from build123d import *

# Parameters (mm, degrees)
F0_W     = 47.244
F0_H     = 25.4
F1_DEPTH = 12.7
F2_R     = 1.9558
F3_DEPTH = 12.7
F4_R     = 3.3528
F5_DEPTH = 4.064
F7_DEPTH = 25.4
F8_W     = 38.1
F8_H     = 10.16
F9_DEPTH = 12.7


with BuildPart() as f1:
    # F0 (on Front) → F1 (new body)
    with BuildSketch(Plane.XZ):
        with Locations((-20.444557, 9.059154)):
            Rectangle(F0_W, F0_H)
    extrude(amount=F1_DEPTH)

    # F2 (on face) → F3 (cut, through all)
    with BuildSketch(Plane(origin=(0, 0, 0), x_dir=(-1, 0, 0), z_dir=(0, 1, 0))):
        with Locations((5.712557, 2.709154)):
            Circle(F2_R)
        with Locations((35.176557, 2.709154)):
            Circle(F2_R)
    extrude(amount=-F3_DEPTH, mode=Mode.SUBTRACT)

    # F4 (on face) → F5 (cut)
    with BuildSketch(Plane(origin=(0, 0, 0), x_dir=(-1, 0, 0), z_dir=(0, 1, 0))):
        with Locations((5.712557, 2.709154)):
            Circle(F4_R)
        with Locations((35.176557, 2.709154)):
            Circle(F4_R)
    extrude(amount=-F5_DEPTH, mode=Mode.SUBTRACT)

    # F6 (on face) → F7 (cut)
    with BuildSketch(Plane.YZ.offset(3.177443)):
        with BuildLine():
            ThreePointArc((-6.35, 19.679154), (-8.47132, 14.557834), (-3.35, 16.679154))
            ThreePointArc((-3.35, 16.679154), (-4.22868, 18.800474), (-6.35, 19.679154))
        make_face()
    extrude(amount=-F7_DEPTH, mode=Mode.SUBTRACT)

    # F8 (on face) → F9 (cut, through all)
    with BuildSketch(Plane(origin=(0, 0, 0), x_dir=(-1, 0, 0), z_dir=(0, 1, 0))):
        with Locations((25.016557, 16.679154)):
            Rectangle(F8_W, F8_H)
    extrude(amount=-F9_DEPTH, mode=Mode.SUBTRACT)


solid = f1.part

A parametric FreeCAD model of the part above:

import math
import FreeCAD as App
import Part
import Sketcher
Q = App.Units.Quantity

doc = App.newDocument("Part")
body = doc.addObject("PartDesign::Body", "Body")

# Sketch on XZ plane
sketch1 = body.newObject("Sketcher::SketchObject", "Sketch")
sketch1.AttachmentSupport = (doc.getObject("XZ_Plane"), [""])
sketch1.MapMode = "FlatFace"
sketch1.addGeometry(Part.LineSegment(App.Vector(-44, 22, 0), App.Vector(-44, -4, 0)), False)
sketch1.addGeometry(Part.LineSegment(App.Vector(-44, -4, 0), App.Vector(3, -4, 0)), False)
sketch1.addGeometry(Part.LineSegment(App.Vector(3, -4, 0), App.Vector(3, 22, 0)), False)
sketch1.addGeometry(Part.LineSegment(App.Vector(3, 22, 0), App.Vector(-44, 22, 0)), False)
sketch1.addConstraint(Sketcher.Constraint("Coincident", 0, 2, 1, 1))
sketch1.addConstraint(Sketcher.Constraint("Coincident", 1, 2, 2, 1))
sketch1.addConstraint(Sketcher.Constraint("Coincident", 2, 2, 3, 1))
sketch1.addConstraint(Sketcher.Constraint("Coincident", 3, 2, 0, 1))
sketch1.addConstraint(Sketcher.Constraint("Vertical", 0))
sketch1.addConstraint(Sketcher.Constraint("Horizontal", 1))
sketch1.addConstraint(Sketcher.Constraint("Vertical", 2))
sketch1.addConstraint(Sketcher.Constraint("Horizontal", 3))
sketch1.addConstraint(Sketcher.Constraint("DistanceY", 0, 2, 0, 1, Q("1 in")))
sketch1.addConstraint(Sketcher.Constraint("DistanceX", 1, 1, 1, 2, Q("1.86 in")))
sketch1.addConstraint(Sketcher.Constraint("DistanceX", 0, 2, -1, 1, 44.066557))
sketch1.addConstraint(Sketcher.Constraint("DistanceY", 0, 2, -1, 1, 3.640846))
pad1 = body.newObject("PartDesign::Pad", "Pad")
pad1.Profile = sketch1
pad1.Length = Q("0.5 in")

# Sketch on XZ plane
sketch2 = body.newObject("Sketcher::SketchObject", "Sketch001")
sketch2.AttachmentSupport = (doc.getObject("XZ_Plane"), [""])
sketch2.MapMode = "FlatFace"
sketch2.addGeometry(Part.Circle(App.Vector(-5.7, 2.7, 0), App.Vector(0, 0, 1), 2), False)
sketch2.addGeometry(Part.Circle(App.Vector(-35.2, 2.7, 0), App.Vector(0, 0, 1), 2), False)
sketch2.addConstraint(Sketcher.Constraint("Equal", 0, 1))
sketch2.addConstraint(Sketcher.Constraint("Horizontal", 0, 3, 1, 3))
sketch2.addConstraint(Sketcher.Constraint("Diameter", 0, Q("0.154 in")))
sketch2.addConstraint(Sketcher.Constraint("DistanceX", 1, 3, 0, 3, Q("1.16 in")))
sketch2.addConstraint(Sketcher.Constraint("DistanceX", 0, 3, -1, 1, 5.712557))
sketch2.addConstraint(Sketcher.Constraint("DistanceY", -1, 1, 0, 3, 2.709154))
pocket1 = body.newObject("PartDesign::Pocket", "Pocket")
pocket1.Profile = sketch2
pocket1.Type = "ThroughAll"
pocket1.Reversed = True

# Sketch on XZ plane
sketch3 = body.newObject("Sketcher::SketchObject", "Sketch002")
sketch3.AttachmentSupport = (doc.getObject("XZ_Plane"), [""])
sketch3.MapMode = "FlatFace"
sketch3.addGeometry(Part.Circle(App.Vector(-5.7, 2.7, 0), App.Vector(0, 0, 1), 3.4), False)
sketch3.addGeometry(Part.Circle(App.Vector(-35.2, 2.7, 0), App.Vector(0, 0, 1), 3.4), False)
sketch3.addConstraint(Sketcher.Constraint("Equal", 0, 1))
sketch3.addConstraint(Sketcher.Constraint("Horizontal", 0, 3, 1, 3))
sketch3.addConstraint(Sketcher.Constraint("Diameter", 0, Q("0.264 in")))
sketch3.addConstraint(Sketcher.Constraint("DistanceX", 1, 3, 0, 3, Q("1.16 in")))
sketch3.addConstraint(Sketcher.Constraint("DistanceX", 0, 3, -1, 1, 5.712557))
sketch3.addConstraint(Sketcher.Constraint("DistanceY", -1, 1, 0, 3, 2.709154))
pocket2 = body.newObject("PartDesign::Pocket", "Pocket001")
pocket2.Profile = sketch3
pocket2.Length = Q("0.16 in")
pocket2.Reversed = True

# Sketch on YZ plane
sketch4 = body.newObject("Sketcher::SketchObject", "Sketch003")
sketch4.AttachmentSupport = (doc.getObject("YZ_Plane"), [""])
sketch4.MapMode = "FlatFace"
sketch4.AttachmentOffset = App.Placement(App.Vector(0, 0, 3.177443), App.Rotation())
sketch4.addGeometry(Part.ArcOfCircle(Part.Circle(App.Vector(-6.3, 16.7, 0), App.Vector(0, 0, 1), 3), math.radians(90), math.radians(360)), False)
sketch4.addGeometry(Part.ArcOfCircle(Part.Circle(App.Vector(-6.4, 16.7, 0), App.Vector(0, 0, 1), 3), math.radians(0), math.radians(90)), False)
sketch4.addConstraint(Sketcher.Constraint("Tangent", 0, 1, 1, 2))
sketch4.addConstraint(Sketcher.Constraint("Coincident", 1, 1, 0, 2))
sketch4.addConstraint(Sketcher.Constraint("Horizontal", 0, 3, 1, 1))
sketch4.addConstraint(Sketcher.Constraint("Vertical", 1, 3, 0, 1))
sketch4.addConstraint(Sketcher.Constraint("DistanceX", 0, 3, -1, 1, Q("0.25 in")))
sketch4.addConstraint(Sketcher.Constraint("Radius", 0, 3.0))
sketch4.addConstraint(Sketcher.Constraint("DistanceY", -1, 1, 0, 3, 16.679154))
pocket3 = body.newObject("PartDesign::Pocket", "Pocket002")
pocket3.Profile = sketch4
pocket3.Length = Q("1 in")

# Sketch on XZ plane
sketch5 = body.newObject("Sketcher::SketchObject", "Sketch004")
sketch5.AttachmentSupport = (doc.getObject("XZ_Plane"), [""])
sketch5.MapMode = "FlatFace"
sketch5.addGeometry(Part.LineSegment(App.Vector(-6, 22, 0), App.Vector(-6, 12, 0)), False)
sketch5.addGeometry(Part.LineSegment(App.Vector(-6, 12, 0), App.Vector(-44, 12, 0)), False)
sketch5.addGeometry(Part.LineSegment(App.Vector(-44, 12, 0), App.Vector(-44, 22, 0)), False)
sketch5.addGeometry(Part.LineSegment(App.Vector(-44, 22, 0), App.Vector(-6, 22, 0)), False)
sketch5.addConstraint(Sketcher.Constraint("Coincident", 0, 2, 1, 1))
sketch5.addConstraint(Sketcher.Constraint("Coincident", 1, 2, 2, 1))
sketch5.addConstraint(Sketcher.Constraint("Coincident", 2, 2, 3, 1))
sketch5.addConstraint(Sketcher.Constraint("Coincident", 3, 2, 0, 1))
sketch5.addConstraint(Sketcher.Constraint("Vertical", 0))
sketch5.addConstraint(Sketcher.Constraint("Horizontal", 1))
sketch5.addConstraint(Sketcher.Constraint("Vertical", 2))
sketch5.addConstraint(Sketcher.Constraint("Horizontal", 3))
sketch5.addConstraint(Sketcher.Constraint("DistanceX", 1, 2, 1, 1, Q("1.5 in")))
sketch5.addConstraint(Sketcher.Constraint("DistanceY", 0, 2, 0, 1, Q("0.4 in")))
sketch5.addConstraint(Sketcher.Constraint("DistanceX", 0, 2, -1, 1, 5.966557))
sketch5.addConstraint(Sketcher.Constraint("DistanceY", -1, 1, 0, 2, 11.599154))
pocket4 = body.newObject("PartDesign::Pocket", "Pocket003")
pocket4.Profile = sketch5
pocket4.Type = "ThroughAll"
pocket4.Reversed = True

doc.recompute()
